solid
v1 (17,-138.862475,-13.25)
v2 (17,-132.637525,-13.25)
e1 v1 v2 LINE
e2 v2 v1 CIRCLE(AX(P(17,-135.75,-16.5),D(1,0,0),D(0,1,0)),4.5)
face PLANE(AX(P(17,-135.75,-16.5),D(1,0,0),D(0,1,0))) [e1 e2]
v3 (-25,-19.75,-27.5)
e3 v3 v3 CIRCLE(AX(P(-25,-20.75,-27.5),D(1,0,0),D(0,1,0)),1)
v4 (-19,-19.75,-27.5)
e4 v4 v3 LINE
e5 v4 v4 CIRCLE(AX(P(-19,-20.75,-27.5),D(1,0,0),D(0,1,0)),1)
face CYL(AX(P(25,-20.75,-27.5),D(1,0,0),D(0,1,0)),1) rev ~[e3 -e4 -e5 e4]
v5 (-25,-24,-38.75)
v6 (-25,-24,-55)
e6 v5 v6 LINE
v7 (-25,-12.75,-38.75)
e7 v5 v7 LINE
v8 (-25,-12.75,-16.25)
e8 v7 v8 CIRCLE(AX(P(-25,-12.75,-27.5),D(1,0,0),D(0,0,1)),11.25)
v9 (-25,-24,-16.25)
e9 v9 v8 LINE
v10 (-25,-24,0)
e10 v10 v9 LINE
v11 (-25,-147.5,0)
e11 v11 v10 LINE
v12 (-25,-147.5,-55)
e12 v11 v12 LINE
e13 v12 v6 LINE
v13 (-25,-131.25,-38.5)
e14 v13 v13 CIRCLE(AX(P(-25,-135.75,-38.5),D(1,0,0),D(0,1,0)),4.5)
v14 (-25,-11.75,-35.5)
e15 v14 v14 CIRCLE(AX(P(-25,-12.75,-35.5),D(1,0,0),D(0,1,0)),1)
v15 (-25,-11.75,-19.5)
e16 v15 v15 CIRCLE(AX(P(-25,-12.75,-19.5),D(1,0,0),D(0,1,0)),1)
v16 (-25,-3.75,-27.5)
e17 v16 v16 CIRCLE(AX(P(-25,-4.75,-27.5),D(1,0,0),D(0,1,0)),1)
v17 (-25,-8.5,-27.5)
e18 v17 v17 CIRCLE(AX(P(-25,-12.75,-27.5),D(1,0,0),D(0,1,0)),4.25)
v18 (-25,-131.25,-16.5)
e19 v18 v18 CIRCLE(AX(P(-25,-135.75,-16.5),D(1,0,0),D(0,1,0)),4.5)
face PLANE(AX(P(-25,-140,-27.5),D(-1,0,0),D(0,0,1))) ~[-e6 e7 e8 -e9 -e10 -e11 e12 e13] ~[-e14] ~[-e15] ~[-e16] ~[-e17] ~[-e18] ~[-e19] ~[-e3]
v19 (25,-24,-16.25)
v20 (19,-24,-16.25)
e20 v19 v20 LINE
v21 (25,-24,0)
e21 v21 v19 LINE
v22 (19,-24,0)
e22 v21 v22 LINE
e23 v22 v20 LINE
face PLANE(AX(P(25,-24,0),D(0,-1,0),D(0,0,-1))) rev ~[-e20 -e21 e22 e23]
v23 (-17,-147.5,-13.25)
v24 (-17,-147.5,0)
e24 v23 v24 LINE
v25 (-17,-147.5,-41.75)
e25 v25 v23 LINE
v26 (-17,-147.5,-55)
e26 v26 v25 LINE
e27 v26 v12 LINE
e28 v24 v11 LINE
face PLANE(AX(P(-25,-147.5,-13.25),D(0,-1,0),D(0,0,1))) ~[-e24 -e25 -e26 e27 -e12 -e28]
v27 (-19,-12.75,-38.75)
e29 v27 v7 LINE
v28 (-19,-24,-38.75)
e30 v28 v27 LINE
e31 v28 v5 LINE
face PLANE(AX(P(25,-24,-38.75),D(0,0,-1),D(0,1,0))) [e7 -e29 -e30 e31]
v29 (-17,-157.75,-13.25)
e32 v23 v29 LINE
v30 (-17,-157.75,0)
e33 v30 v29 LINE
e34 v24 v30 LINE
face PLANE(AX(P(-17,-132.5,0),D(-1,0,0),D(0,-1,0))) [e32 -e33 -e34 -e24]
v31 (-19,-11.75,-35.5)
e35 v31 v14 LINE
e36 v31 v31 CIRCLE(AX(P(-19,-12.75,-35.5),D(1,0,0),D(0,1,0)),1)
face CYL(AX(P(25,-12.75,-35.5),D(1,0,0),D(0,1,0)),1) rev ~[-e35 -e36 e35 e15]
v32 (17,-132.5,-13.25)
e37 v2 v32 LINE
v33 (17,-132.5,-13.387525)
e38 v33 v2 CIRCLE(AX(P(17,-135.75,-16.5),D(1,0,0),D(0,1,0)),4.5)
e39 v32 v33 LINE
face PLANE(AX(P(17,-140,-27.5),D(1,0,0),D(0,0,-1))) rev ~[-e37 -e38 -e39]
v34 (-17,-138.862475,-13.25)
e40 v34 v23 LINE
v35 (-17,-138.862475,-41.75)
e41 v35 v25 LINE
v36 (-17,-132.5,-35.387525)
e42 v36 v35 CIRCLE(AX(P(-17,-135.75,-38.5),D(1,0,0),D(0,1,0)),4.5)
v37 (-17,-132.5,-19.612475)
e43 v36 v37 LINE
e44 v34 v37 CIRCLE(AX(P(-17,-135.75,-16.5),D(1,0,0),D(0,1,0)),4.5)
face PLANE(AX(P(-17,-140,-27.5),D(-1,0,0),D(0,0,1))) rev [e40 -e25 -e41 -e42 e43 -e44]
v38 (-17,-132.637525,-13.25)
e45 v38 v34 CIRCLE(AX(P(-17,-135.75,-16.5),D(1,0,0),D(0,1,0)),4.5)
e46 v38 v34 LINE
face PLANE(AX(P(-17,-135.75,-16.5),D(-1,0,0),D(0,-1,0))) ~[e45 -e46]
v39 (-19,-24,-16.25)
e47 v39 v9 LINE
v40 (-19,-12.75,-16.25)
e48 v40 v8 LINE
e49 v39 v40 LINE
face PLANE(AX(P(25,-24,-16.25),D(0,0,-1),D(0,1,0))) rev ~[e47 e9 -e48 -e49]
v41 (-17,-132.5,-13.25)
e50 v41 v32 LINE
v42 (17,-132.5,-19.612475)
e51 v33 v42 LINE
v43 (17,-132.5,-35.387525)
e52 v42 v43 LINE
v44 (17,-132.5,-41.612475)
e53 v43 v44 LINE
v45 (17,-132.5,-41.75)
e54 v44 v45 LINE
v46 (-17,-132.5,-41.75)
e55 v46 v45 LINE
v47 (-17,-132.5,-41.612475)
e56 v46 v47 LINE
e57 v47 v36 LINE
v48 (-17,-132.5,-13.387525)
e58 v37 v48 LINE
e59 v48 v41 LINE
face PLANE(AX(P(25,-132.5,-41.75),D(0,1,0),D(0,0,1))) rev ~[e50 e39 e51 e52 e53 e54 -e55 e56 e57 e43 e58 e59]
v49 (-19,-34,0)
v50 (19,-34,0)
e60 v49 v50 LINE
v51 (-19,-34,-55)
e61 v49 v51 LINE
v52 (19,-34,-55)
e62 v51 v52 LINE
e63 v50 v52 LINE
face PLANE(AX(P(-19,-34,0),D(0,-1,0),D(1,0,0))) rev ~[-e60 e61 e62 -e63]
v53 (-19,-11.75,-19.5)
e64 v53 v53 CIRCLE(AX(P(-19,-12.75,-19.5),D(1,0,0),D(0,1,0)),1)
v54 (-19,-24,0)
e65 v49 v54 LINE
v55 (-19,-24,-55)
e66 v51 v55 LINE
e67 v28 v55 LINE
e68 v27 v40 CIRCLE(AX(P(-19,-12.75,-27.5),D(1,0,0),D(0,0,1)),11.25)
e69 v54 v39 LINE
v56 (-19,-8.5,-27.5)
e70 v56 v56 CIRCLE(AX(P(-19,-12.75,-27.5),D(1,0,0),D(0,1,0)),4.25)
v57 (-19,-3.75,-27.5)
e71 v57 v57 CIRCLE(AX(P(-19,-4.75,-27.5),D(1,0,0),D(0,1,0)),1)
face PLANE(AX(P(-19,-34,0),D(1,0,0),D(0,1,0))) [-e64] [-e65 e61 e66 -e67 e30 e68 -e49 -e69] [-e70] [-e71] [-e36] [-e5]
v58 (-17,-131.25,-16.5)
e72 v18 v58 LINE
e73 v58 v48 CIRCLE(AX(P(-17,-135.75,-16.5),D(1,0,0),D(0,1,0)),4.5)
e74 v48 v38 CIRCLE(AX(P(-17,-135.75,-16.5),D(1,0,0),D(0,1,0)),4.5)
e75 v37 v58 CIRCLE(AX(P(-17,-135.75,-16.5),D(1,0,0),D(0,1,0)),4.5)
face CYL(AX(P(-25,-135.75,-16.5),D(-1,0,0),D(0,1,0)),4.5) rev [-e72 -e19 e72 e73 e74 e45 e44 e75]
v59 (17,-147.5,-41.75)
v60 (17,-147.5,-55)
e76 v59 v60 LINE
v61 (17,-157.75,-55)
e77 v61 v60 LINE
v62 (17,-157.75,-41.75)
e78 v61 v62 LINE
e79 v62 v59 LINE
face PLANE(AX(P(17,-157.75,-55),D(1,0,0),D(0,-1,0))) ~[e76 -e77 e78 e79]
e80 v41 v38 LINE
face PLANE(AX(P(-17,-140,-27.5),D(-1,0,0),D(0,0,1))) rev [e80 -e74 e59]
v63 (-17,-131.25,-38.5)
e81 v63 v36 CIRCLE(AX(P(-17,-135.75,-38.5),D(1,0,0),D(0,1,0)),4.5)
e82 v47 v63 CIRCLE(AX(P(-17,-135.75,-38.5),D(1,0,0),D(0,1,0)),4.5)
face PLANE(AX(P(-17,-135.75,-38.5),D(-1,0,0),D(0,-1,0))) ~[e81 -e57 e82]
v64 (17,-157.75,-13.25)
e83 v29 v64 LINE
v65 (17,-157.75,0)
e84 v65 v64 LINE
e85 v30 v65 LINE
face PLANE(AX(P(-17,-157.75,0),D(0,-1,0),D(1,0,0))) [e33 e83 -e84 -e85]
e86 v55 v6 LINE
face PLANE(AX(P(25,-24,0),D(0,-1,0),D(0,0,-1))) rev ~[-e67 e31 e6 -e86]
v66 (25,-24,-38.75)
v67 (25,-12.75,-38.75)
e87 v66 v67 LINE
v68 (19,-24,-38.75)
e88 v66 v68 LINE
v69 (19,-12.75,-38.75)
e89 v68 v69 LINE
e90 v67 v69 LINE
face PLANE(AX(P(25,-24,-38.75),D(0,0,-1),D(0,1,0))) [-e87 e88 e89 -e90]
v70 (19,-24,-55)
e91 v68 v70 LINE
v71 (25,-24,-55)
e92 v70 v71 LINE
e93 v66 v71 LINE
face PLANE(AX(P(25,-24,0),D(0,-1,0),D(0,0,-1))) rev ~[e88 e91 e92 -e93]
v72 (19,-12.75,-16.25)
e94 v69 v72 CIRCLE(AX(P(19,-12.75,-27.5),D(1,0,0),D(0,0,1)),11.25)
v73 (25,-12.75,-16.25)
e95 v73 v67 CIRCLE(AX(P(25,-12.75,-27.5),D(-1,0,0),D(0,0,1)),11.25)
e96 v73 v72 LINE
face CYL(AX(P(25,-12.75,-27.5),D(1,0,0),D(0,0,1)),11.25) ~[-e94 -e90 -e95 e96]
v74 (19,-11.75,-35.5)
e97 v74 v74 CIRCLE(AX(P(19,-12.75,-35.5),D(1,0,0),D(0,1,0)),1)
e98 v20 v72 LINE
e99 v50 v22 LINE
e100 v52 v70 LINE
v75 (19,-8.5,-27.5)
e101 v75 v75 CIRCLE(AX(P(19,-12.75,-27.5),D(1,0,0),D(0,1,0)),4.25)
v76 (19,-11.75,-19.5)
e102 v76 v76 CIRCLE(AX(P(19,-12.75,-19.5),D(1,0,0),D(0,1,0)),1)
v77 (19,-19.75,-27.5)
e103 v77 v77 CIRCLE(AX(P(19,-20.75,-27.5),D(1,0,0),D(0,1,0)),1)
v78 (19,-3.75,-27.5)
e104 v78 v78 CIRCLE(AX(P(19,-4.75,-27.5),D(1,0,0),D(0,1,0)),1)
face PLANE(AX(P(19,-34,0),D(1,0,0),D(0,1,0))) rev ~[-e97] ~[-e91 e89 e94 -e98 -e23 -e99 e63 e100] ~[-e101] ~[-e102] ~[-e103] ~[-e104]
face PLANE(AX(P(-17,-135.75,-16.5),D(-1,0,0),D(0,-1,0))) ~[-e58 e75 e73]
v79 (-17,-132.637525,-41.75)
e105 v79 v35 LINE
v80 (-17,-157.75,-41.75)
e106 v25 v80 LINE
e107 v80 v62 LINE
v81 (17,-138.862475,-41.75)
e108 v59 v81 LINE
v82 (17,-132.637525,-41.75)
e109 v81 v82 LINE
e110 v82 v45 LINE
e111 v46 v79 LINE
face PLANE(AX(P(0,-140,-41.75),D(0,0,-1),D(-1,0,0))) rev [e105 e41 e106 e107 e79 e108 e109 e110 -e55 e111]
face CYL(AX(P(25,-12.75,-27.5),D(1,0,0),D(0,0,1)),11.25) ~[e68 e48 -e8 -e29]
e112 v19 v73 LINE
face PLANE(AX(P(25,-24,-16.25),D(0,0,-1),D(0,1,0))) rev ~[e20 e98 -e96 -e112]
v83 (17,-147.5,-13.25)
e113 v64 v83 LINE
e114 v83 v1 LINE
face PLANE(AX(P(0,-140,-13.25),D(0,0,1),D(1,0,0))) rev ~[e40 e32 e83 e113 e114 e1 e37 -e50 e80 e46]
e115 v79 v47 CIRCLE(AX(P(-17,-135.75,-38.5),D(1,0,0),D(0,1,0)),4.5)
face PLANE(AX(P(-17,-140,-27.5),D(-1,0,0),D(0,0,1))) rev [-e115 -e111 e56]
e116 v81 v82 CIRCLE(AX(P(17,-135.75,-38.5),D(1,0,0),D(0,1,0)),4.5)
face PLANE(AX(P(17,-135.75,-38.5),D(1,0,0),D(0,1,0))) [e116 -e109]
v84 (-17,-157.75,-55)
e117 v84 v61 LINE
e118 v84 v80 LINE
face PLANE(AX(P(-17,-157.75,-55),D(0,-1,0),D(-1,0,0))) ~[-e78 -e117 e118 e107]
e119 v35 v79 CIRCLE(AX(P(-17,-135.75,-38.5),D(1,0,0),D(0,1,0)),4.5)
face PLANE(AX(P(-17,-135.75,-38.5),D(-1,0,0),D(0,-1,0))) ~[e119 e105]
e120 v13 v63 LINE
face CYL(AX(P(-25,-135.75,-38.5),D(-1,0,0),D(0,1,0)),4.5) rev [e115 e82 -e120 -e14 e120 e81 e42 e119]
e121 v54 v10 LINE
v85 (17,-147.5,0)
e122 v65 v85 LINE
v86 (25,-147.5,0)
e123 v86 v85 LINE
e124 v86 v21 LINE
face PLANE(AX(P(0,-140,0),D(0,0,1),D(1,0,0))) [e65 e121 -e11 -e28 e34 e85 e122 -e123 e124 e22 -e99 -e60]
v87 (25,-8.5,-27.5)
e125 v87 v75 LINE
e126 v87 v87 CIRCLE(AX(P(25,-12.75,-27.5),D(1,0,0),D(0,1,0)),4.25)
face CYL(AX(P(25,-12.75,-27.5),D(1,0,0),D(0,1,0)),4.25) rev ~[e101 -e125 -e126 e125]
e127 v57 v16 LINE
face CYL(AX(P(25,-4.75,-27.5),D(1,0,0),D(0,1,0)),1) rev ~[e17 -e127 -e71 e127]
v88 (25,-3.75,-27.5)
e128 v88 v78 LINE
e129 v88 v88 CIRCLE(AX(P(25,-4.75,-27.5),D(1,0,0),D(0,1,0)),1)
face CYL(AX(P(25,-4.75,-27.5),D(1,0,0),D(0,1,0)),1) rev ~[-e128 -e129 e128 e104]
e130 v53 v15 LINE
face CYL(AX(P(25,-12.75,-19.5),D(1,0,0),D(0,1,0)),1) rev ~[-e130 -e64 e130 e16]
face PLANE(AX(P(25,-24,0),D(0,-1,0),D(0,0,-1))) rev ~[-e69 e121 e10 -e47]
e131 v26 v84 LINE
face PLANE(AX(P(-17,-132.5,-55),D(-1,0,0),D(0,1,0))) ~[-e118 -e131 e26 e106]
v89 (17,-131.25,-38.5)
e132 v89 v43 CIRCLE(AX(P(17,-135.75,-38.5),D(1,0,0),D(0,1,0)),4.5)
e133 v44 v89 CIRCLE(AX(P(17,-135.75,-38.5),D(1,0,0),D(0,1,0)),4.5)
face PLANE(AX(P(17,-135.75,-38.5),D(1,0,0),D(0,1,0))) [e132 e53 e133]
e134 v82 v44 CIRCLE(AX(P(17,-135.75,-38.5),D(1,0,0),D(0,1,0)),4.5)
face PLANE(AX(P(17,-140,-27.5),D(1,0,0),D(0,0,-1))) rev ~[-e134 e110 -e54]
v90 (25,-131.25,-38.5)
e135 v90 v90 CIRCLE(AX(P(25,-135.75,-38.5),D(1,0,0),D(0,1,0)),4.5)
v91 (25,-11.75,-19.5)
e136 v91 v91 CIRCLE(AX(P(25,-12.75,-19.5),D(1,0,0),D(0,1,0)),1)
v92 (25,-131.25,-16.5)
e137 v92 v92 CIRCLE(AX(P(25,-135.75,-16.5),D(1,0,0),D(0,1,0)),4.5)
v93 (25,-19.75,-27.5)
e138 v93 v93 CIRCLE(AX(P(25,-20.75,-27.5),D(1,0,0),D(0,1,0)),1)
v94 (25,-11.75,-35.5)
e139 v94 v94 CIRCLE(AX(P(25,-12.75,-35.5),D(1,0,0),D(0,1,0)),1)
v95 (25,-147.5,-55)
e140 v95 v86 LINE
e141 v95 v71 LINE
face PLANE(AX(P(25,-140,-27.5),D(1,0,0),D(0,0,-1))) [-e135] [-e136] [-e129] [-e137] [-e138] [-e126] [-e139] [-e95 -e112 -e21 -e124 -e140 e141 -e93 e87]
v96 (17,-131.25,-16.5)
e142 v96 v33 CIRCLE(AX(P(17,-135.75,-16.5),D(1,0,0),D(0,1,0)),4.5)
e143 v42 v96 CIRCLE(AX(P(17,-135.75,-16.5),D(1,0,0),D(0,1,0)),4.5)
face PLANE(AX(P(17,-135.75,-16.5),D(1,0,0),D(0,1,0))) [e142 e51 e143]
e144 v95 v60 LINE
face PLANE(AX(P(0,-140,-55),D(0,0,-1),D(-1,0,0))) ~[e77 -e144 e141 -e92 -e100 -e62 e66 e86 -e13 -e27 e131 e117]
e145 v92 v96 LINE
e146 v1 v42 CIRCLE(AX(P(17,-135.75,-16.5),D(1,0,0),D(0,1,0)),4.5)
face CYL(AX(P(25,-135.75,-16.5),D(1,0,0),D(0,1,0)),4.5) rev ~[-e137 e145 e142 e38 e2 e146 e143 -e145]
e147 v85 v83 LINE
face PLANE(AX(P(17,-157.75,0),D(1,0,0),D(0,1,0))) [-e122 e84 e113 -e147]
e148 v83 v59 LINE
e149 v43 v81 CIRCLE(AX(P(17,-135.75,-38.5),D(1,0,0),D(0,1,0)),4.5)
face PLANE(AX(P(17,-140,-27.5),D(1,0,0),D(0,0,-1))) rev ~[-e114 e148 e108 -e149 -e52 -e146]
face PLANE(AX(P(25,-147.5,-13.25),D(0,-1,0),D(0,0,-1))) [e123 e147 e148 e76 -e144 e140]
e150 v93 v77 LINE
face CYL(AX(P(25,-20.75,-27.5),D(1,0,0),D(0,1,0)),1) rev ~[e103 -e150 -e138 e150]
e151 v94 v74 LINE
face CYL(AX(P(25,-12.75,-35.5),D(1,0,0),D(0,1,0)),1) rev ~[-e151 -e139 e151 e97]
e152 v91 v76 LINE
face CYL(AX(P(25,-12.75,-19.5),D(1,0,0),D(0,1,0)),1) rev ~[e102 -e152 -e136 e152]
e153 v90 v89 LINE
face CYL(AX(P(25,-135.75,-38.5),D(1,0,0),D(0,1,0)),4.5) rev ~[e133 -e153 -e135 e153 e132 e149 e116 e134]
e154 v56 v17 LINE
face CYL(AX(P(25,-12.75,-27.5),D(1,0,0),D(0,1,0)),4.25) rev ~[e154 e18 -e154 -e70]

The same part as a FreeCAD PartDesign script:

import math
import FreeCAD as App
import Part
import Sketcher
Q = App.Units.Quantity

doc = App.newDocument("Part")
body = doc.addObject("PartDesign::Body", "Body")

# Sketch on XY plane
sketch1 = doc.addObject("Sketcher::SketchObject", "Sketch")
body.addObject(sketch1)
sketch1.AttachmentSupport = (doc.XY_Plane, [""])
sketch1.MapMode = "FlatFace"
sketch1.addGeometry([
    Part.LineSegment(App.Vector(-25, 0, 0), App.Vector(-25, -170, 0)),
    Part.LineSegment(App.Vector(-25, -170, 0), App.Vector(25, -170, 0)),
    Part.LineSegment(App.Vector(25, -170, 0), App.Vector(25, 0, 0)),
    Part.LineSegment(App.Vector(25, 0, 0), App.Vector(-25, 0, 0)),
], False)
sketch1.addConstraint([
    Sketcher.Constraint("Coincident", 0, 2, 1, 1),
    Sketcher.Constraint("Coincident", 1, 2, 2, 1),
    Sketcher.Constraint("Coincident", 2, 2, 3, 1),
    Sketcher.Constraint("Coincident", 3, 2, 0, 1),
    Sketcher.Constraint("Vertical", 0),
    Sketcher.Constraint("Horizontal", 1),
    Sketcher.Constraint("Vertical", 2),
    Sketcher.Constraint("Horizontal", 3),
    Sketcher.Constraint("Symmetric", 2, 2, 3, 2, -1, 1),
    Sketcher.Constraint("DistanceX", 1, 1, 1, 2, Q("50 mm")),
    Sketcher.Constraint("DistanceY", 0, 2, 0, 1, Q("170 mm")),
])
pad1 = doc.addObject("PartDesign::Pad", "Pad")
body.addObject(pad1)
pad1.Profile = sketch1
pad1.Length = 55
pad1.Reversed = True

# Sketch on XY plane
sketch2 = doc.addObject("Sketcher::SketchObject", "Sketch001")
body.addObject(sketch2)
sketch2.AttachmentSupport = (doc.XY_Plane, [""])
sketch2.MapMode = "FlatFace"
sketch2.addGeometry([
    Part.LineSegment(App.Vector(-17, 0, 0), App.Vector(-17, -27, 0)),
    Part.LineSegment(App.Vector(-17, -27, 0), App.Vector(17, -27, 0)),
    Part.LineSegment(App.Vector(17, -27, 0), App.Vector(17, 0, 0)),
    Part.LineSegment(App.Vector(17, 0, 0), App.Vector(-17, 0, 0)),
], False)
sketch2.addConstraint([
    Sketcher.Constraint("Coincident", 0, 2, 1, 1),
    Sketcher.Constraint("Coincident", 1, 2, 2, 1),
    Sketcher.Constraint("Coincident", 2, 2, 3, 1),
    Sketcher.Constraint("Coincident", 3, 2, 0, 1),
    Sketcher.Constraint("Vertical", 0),
    Sketcher.Constraint("Horizontal", 1),
    Sketcher.Constraint("Vertical", 2),
    Sketcher.Constraint("Horizontal", 3),
    Sketcher.Constraint("Symmetric", 2, 2, 3, 2, -1, 1),
    Sketcher.Constraint("DistanceX", 1, 1, 1, 2, Q("34 mm")),
    Sketcher.Constraint("DistanceY", 0, 2, 0, 1, Q("27 mm")),
])
pocket1 = doc.addObject("PartDesign::Pocket", "Pocket")
body.addObject(pocket1)
pocket1.Profile = sketch2
pocket1.Type = "ThroughAll"

# Sketch on YZ plane
sketch3 = doc.addObject("Sketcher::SketchObject", "Sketch002")
body.addObject(sketch3)
sketch3.AttachmentSupport = (doc.YZ_Plane, [""])
sketch3.MapMode = "FlatFace"
sketch3.AttachmentOffset = App.Placement(App.Vector(0, 0, 25), App.Rotation())
sketch3.addGeometry([
    Part.LineSegment(App.Vector(0, -45, 0), App.Vector(-24, -45, 0)),  # 0
    Part.LineSegment(App.Vector(-24, -45, 0), App.Vector(-24, -55, 0)),  # 1
    Part.LineSegment(App.Vector(-24, -55, 0), App.Vector(0, -55, 0)),  # 2
    Part.LineSegment(App.Vector(0, -55, 0), App.Vector(0, -45, 0)),  # 3
    Part.LineSegment(App.Vector(0, 0, 0), App.Vector(-24, 0, 0)),  # 4
    Part.LineSegment(App.Vector(-24, 0, 0), App.Vector(-24, -10, 0)),  # 5
    Part.LineSegment(App.Vector(-24, -10, 0), App.Vector(0, -10, 0)),  # 6
    Part.LineSegment(App.Vector(0, -10, 0), App.Vector(0, 0, 0)),  # 7
    Part.Circle(App.Vector(-12.8, -27.5, 0), App.Vector(0, 0, 1), 4.2),  # 8
    Part.Circle(App.Vector(-12.8, -35.5, 0), App.Vector(0, 0, 1), 1),  # 9
    Part.Circle(App.Vector(-4.8, -27.5, 0), App.Vector(0, 0, 1), 1),  # 10
    Part.Circle(App.Vector(-20.8, -27.5, 0), App.Vector(0, 0, 1), 1),  # 11
    Part.Circle(App.Vector(-12.8, -19.5, 0), App.Vector(0, 0, 1), 1),  # 12
], False)
sketch3.addConstraint([
    Sketcher.Constraint("Coincident", 0, 2, 1, 1),
    Sketcher.Constraint("Coincident", 1, 2, 2, 1),
    Sketcher.Constraint("Coincident", 2, 2, 3, 1),
    Sketcher.Constraint("Coincident", 3, 2, 0, 1),
    Sketcher.Constraint("Coincident", 4, 2, 5, 1),
    Sketcher.Constraint("Coincident", 5, 2, 6, 1),
    Sketcher.Constraint("Coincident", 6, 2, 7, 1),
    Sketcher.Constraint("Coincident", 7, 2, 4, 1),
    Sketcher.Constraint("Horizontal", 0),
    Sketcher.Constraint("Vertical", 1),
    Sketcher.Constraint("Horizontal", 2),
    Sketcher.Constraint("Vertical", 3),
    Sketcher.Constraint("Horizontal", 4),
    Sketcher.Constraint("Vertical", 5),
    Sketcher.Constraint("Horizontal", 6),
    Sketcher.Constraint("Vertical", 7),
    Sketcher.Constraint("Coincident", 7, 2, -1, 1),
    Sketcher.Constraint("Equal", 9, 10),
    Sketcher.Constraint("Equal", 10, 11),
    Sketcher.Constraint("Equal", 11, 12),
    Sketcher.Constraint("PointOnObject", 2, 2, -2),
    Sketcher.Constraint("Horizontal", 8, 3, 10, 3),
    Sketcher.Constraint("Horizontal", 10, 3, 11, 3),
    Sketcher.Constraint("Vertical", 8, 3, 9, 3),
    Sketcher.Constraint("Vertical", 9, 3, 12, 3),
    Sketcher.Constraint("Vertical", 1, 2, 4, 2),
    Sketcher.Constraint("Equal", 3, 5),
    Sketcher.Constraint("Diameter", 9, Q("2 mm")),
    Sketcher.Constraint("Diameter", 8, Q("8.5 mm")),
    Sketcher.Constraint("DistanceX", 0, 2, 0, 1, Q("24 mm")),
    Sketcher.Constraint("DistanceY", 1, 2, 1, 1, Q("10 mm")),
    Sketcher.Constraint("DistanceY", 0, 2, -1, 1, Q("45 mm")),
    Sketcher.Constraint("DistanceY", 9, 3, 8, 3, Q("8 mm")),
    Sketcher.Constraint("DistanceX", 8, 3, 10, 3, Q("8 mm")),
    Sketcher.Constraint("DistanceX", 11, 3, 8, 3, Q("8 mm")),
    Sketcher.Constraint("DistanceY", 8, 3, 12, 3, Q("8 mm")),
    Sketcher.Constraint("DistanceY", 8, 3, -1, 1, Q("27.5 mm")),
    Sketcher.Constraint("DistanceX", 8, 3, -1, 1, Q("12.75 mm")),
])
pocket2 = doc.addObject("PartDesign::Pocket", "Pocket001")
body.addObject(pocket2)
pocket2.Profile = sketch3
pocket2.Type = "ThroughAll"

# Sketch on XY plane
sketch4 = doc.addObject("Sketcher::SketchObject", "Sketch003")
body.addObject(sketch4)
sketch4.AttachmentSupport = (doc.XY_Plane, [""])
sketch4.MapMode = "FlatFace"
sketch4.AttachmentOffset = App.Placement(App.Vector(0, 0, -10), App.Rotation())
sketch4.addGeometry([
    Part.LineSegment(App.Vector(-19, 0, 0), App.Vector(-19, -24, 0)),  # 0
    Part.LineSegment(App.Vector(-19, -24, 0), App.Vector(-17, -24, 0)),  # 1
    Part.LineSegment(App.Vector(-17, -24, 0), App.Vector(-17, 0, 0)),  # 2
    Part.LineSegment(App.Vector(-17, 0, 0), App.Vector(-19, 0, 0)),  # 3
    Part.LineSegment(App.Vector(17, 0, 0), App.Vector(17, -24, 0)),  # 4
    Part.LineSegment(App.Vector(17, -24, 0), App.Vector(19, -24, 0)),  # 5
    Part.LineSegment(App.Vector(19, -24, 0), App.Vector(19, 0, 0)),  # 6
    Part.LineSegment(App.Vector(19, 0, 0), App.Vector(17, 0, 0)),  # 7
], False)
sketch4.addConstraint([
    Sketcher.Constraint("Coincident", 0, 2, 1, 1),
    Sketcher.Constraint("Coincident", 1, 2, 2, 1),
    Sketcher.Constraint("Coincident", 2, 2, 3, 1),
    Sketcher.Constraint("Coincident", 3, 2, 0, 1),
    Sketcher.Constraint("Coincident", 4, 2, 5, 1),
    Sketcher.Constraint("Coincident", 5, 2, 6, 1),
    Sketcher.Constraint("Coincident", 6, 2, 7, 1),
    Sketcher.Constraint("Coincident", 7, 2, 4, 1),
    Sketcher.Constraint("Vertical", 0),
    Sketcher.Constraint("Horizontal", 1),
    Sketcher.Constraint("Vertical", 2),
    Sketcher.Constraint("Horizontal", 3),
    Sketcher.Constraint("Vertical", 4),
    Sketcher.Constraint("Horizontal", 5),
    Sketcher.Constraint("Vertical", 6),
    Sketcher.Constraint("Horizontal", 7),
    Sketcher.Constraint("Symmetric", 3, 2, 6, 2, -1, 1),
    Sketcher.Constraint("Symmetric", 1, 2, 4, 2, -2),
    Sketcher.Constraint("PointOnObject", 2, 2, -1),
    Sketcher.Constraint("DistanceX", 1, 1, 1, 2, Q("2 mm")),
    Sketcher.Constraint("DistanceY", 0, 2, 0, 1, Q("24 mm")),
    Sketcher.Constraint("DistanceX", 0, 2, -1, 1, Q("19 mm")),
])
pocket3 = doc.addObject("PartDesign::Pocket", "Pocket002")
body.addObject(pocket3)
pocket3.Profile = sketch4
pocket3.Type = "ThroughAll"

# Sketch on YZ plane
sketch5 = doc.addObject("Sketcher::SketchObject", "Sketch004")
body.addObject(sketch5)
sketch5.AttachmentSupport = (doc.YZ_Plane, [""])
sketch5.MapMode = "FlatFace"
sketch5.AttachmentOffset = App.Placement(App.Vector(0, 0, 25), App.Rotation())
sketch5.addGeometry([
    Part.LineSegment(App.Vector(0, -45, 0), App.Vector(0, -10, 0)),  # 0
    Part.LineSegment(App.Vector(0, -10, 0), App.Vector(-24, -10, 0)),  # 1
    Part.LineSegment(App.Vector(-24, -10, 0), App.Vector(-24, -16, 0)),  # 2
    Part.LineSegment(App.Vector(-24, -16, 0), App.Vector(-13, -16, 0)),  # 3
    Part.ArcOfCircle(Part.Circle(App.Vector(-13, -28, 0), App.Vector(0, 0, 1), 11), math.radians(-90), math.radians(90)),  # 4
    Part.LineSegment(App.Vector(-13, -39, 0), App.Vector(-24, -39, 0)),  # 5
    Part.LineSegment(App.Vector(-24, -39, 0), App.Vector(-24, -45, 0)),  # 6
    Part.LineSegment(App.Vector(-24, -45, 0), App.Vector(0, -45, 0)),  # 7
], False)
sketch5.addConstraint([
    Sketcher.Constraint("Coincident", 0, 2, 1, 1),
    Sketcher.Constraint("Coincident", 1, 2, 2, 1),
    Sketcher.Constraint("Coincident", 2, 2, 3, 1),
    Sketcher.Constraint("Tangent", 3, 2, 4, 2),
    Sketcher.Constraint("Tangent", 4, 1, 5, 1),
    Sketcher.Constraint("Coincident", 5, 2, 6, 1),
    Sketcher.Constraint("Coincident", 6, 2, 7, 1),
    Sketcher.Constraint("Coincident", 7, 2, 0, 1),
    Sketcher.Constraint("Vertical", 0),
    Sketcher.Constraint("Horizontal", 1),
    Sketcher.Constraint("Vertical", 2),
    Sketcher.Constraint("Horizontal", 3),
    Sketcher.Constraint("Horizontal", 5),
    Sketcher.Constraint("Vertical", 6),
    Sketcher.Constraint("Horizontal", 7),
    Sketcher.Constraint("PointOnObject", 0, 2, -2),
    Sketcher.Constraint("Vertical", 2, 2, 5, 2),
    Sketcher.Constraint("Equal", 2, 6),
    Sketcher.Constraint("DistanceX", 1, 2, 1, 1, Q("24 mm")),
    Sketcher.Constraint("DistanceY", 0, 1, 0, 2, Q("35 mm")),
    Sketcher.Constraint("Radius", 4, Q("11.25 mm")),
    Sketcher.Constraint("DistanceY", 0, 2, -1, 1, Q("10 mm")),
    Sketcher.Constraint("DistanceX", 3, 1, 3, 2, Q("11.25 mm")),
])
pocket4 = doc.addObject("PartDesign::Pocket", "Pocket003")
body.addObject(pocket4)
pocket4.Profile = sketch5
pocket4.Type = "ThroughAll"

# Sketch on XY plane
sketch6 = doc.addObject("Sketcher::SketchObject", "Sketch005")
body.addObject(sketch6)
sketch6.AttachmentSupport = (doc.XY_Plane, [""])
sketch6.MapMode = "FlatFace"
sketch6.addGeometry([
    Part.LineSegment(App.Vector(-19, -24, 0), App.Vector(-19, -34, 0)),
    Part.LineSegment(App.Vector(-19, -34, 0), App.Vector(19, -34, 0)),
    Part.LineSegment(App.Vector(19, -34, 0), App.Vector(19, -24, 0)),
    Part.LineSegment(App.Vector(19, -24, 0), App.Vector(-19, -24, 0)),
], False)
sketch6.addConstraint([
    Sketcher.Constraint("Coincident", 0, 2, 1, 1),
    Sketcher.Constraint("Coincident", 1, 2, 2, 1),
    Sketcher.Constraint("Coincident", 2, 2, 3, 1),
    Sketcher.Constraint("Coincident", 3, 2, 0, 1),
    Sketcher.Constraint("Vertical", 0),
    Sketcher.Constraint("Horizontal", 1),
    Sketcher.Constraint("Vertical", 2),
    Sketcher.Constraint("Horizontal", 3),
    Sketcher.Constraint("DistanceX", 1, 1, 1, 2, Q("38 mm")),
    Sketcher.Constraint("DistanceY", 0, 2, 0, 1, Q("10 mm")),
    Sketcher.Constraint("DistanceX", 0, 2, -1, 1, Q("19 mm")),
    Sketcher.Constraint("DistanceY", 0, 2, -1, 1, Q("34 mm")),
])
pocket5 = doc.addObject("PartDesign::Pocket", "Pocket004")
body.addObject(pocket5)
pocket5.Profile = sketch6
pocket5.Type = "ThroughAll"

# Sketch on YZ plane
sketch7 = doc.addObject("Sketcher::SketchObject", "Sketch006")
body.addObject(sketch7)
sketch7.AttachmentSupport = (doc.YZ_Plane, [""])
sketch7.MapMode = "FlatFace"
sketch7.AttachmentOffset = App.Placement(App.Vector(0, 0, 25), App.Rotation())
sketch7.addGeometry([
    Part.LineSegment(App.Vector(-132.5, -13.2, 0), App.Vector(-167.8, -13.2, 0)),  # 0
    Part.LineSegment(App.Vector(-167.8, -13.2, 0), App.Vector(-167.8, 0, 0)),  # 1
    Part.LineSegment(App.Vector(-167.8, 0, 0), App.Vector(-170, 0, 0)),  # 2
    Part.LineSegment(App.Vector(-170, 0, 0), App.Vector(-170, -55, 0)),  # 3
    Part.LineSegment(App.Vector(-170, -55, 0), App.Vector(-167.8, -55, 0)),  # 4
    Part.LineSegment(App.Vector(-167.8, -55, 0), App.Vector(-167.8, -41.8, 0)),  # 5
    Part.LineSegment(App.Vector(-167.8, -41.8, 0), App.Vector(-132.5, -41.8, 0)),  # 6
    Part.LineSegment(App.Vector(-132.5, -41.8, 0), App.Vector(-132.5, -13.2, 0)),  # 7
], False)
sketch7.addConstraint([
    Sketcher.Constraint("Coincident", 0, 2, 1, 1),
    Sketcher.Constraint("Coincident", 1, 2, 2, 1),
    Sketcher.Constraint("Coincident", 2, 2, 3, 1),
    Sketcher.Constraint("Coincident", 3, 2, 4, 1),
    Sketcher.Constraint("Coincident", 4, 2, 5, 1),
    Sketcher.Constraint("Coincident", 5, 2, 6, 1),
    Sketcher.Constraint("Coincident", 6, 2, 7, 1),
    Sketcher.Constraint("Coincident", 7, 2, 0, 1),
    Sketcher.Constraint("Horizontal", 0),
    Sketcher.Constraint("Vertical", 1),
    Sketcher.Constraint("Horizontal", 2),
    Sketcher.Constraint("Vertical", 3),
    Sketcher.Constraint("Horizontal", 4),
    Sketcher.Constraint("Vertical", 5),
    Sketcher.Constraint("Horizontal", 6),
    Sketcher.Constraint("Vertical", 7),
    Sketcher.Constraint("PointOnObject", 1, 2, -1),
    Sketcher.Constraint("Vertical", 1, 2, 4, 2),
    Sketcher.Constraint("Equal", 1, 5),
    Sketcher.Constraint("DistanceY", 3, 2, 3, 1, Q("55 mm")),
    Sketcher.Constraint("DistanceY", 7, 1, 7, 2, Q("28.5 mm")),
    Sketcher.Constraint("DistanceX", 2, 2, -1, 1, Q("170 mm")),
    Sketcher.Constraint("DistanceX", 0, 2, 0, 1, Q("35.25 mm")),
    Sketcher.Constraint("DistanceX", 2, 2, 2, 1, Q("2.25 mm")),
])
pocket6 = doc.addObject("PartDesign::Pocket", "Pocket005")
body.addObject(pocket6)
pocket6.Profile = sketch7
pocket6.Type = "ThroughAll"

# Sketch on XY plane
sketch8 = doc.addObject("Sketcher::SketchObject", "Sketch007")
body.addObject(sketch8)
sketch8.AttachmentSupport = (doc.XY_Plane, [""])
sketch8.MapMode = "FlatFace"
sketch8.addGeometry([
    Part.LineSegment(App.Vector(-17, -132, 0), App.Vector(-17, -168, 0)),
    Part.LineSegment(App.Vector(-17, -168, 0), App.Vector(17, -168, 0)),
    Part.LineSegment(App.Vector(17, -168, 0), App.Vector(17, -132, 0)),
    Part.LineSegment(App.Vector(17, -132, 0), App.Vector(-17, -132, 0)),
], False)
sketch8.addConstraint([
    Sketcher.Constraint("Coincident", 0, 2, 1, 1),
    Sketcher.Constraint("Coincident", 1, 2, 2, 1),
    Sketcher.Constraint("Coincident", 2, 2, 3, 1),
    Sketcher.Constraint("Coincident", 3, 2, 0, 1),
    Sketcher.Constraint("Vertical", 0),
    Sketcher.Constraint("Horizontal", 1),
    Sketcher.Constraint("Vertical", 2),
    Sketcher.Constraint("Horizontal", 3),
    Sketcher.Constraint("DistanceX", 1, 1, 1, 2, Q("34 mm")),
    Sketcher.Constraint("DistanceX", 0, 2, -1, 1, Q("17 mm")),
    Sketcher.Constraint("DistanceY", 0, 2, 0, 1, Q("35.25 mm")),
    Sketcher.Constraint("DistanceY", 2, 2, -1, 1, Q("132.5 mm")),
])
pocket7 = doc.addObject("PartDesign::Pocket", "Pocket006")
body.addObject(pocket7)
pocket7.Profile = sketch8
pocket7.Type = "ThroughAll"

# Sketch on YZ plane
sketch9 = doc.addObject("Sketcher::SketchObject", "Sketch008")
body.addObject(sketch9)
sketch9.AttachmentSupport = (doc.YZ_Plane, [""])
sketch9.MapMode = "FlatFace"
sketch9.AttachmentOffset = App.Placement(App.Vector(0, 0, 25), App.Rotation())
sketch9.addGeometry([
    Part.ArcOfCircle(Part.Circle(App.Vector(-168, -28, 0), App.Vector(0, 0, 1), 10), math.radians(0), math.radians(90)),  # 0
    Part.ArcOfCircle(Part.Circle(App.Vector(-168, -27, 0), App.Vector(0, 0, 1), 10), math.radians(-90), math.radians(0)),  # 1
    Part.LineSegment(App.Vector(-168, -38, 0), App.Vector(-168, -55, 0)),  # 2
    Part.LineSegment(App.Vector(-168, -55, 0), App.Vector(-148, -55, 0)),  # 3
    Part.LineSegment(App.Vector(-148, -55, 0), App.Vector(-148, 0, 0)),  # 4
    Part.LineSegment(App.Vector(-148, 0, 0), App.Vector(-168, 0, 0)),  # 5
    Part.LineSegment(App.Vector(-168, 0, 0), App.Vector(-168, -17, 0)),  # 6
], False)
sketch9.addConstraint([
    Sketcher.Constraint("Tangent", 0, 1, 1, 2),
    Sketcher.Constraint("Coincident", 1, 1, 2, 1),
    Sketcher.Constraint("Coincident", 2, 2, 3, 1),
    Sketcher.Constraint("Coincident", 3, 2, 4, 1),
    Sketcher.Constraint("Coincident", 4, 2, 5, 1),
    Sketcher.Constraint("Coincident", 5, 2, 6, 1),
    Sketcher.Constraint("Coincident", 6, 2, 0, 2),
    Sketcher.Constraint("Vertical", 2),
    Sketcher.Constraint("Horizontal", 3),
    Sketcher.Constraint("Vertical", 4),
    Sketcher.Constraint("Horizontal", 5),
    Sketcher.Constraint("Vertical", 6),
    Sketcher.Constraint("Equal", 0, 1),
    Sketcher.Constraint("PointOnObject", 4, 2, -1),
    Sketcher.Constraint("Horizontal", 1, 3, 0, 1),
    Sketcher.Constraint("Vertical", 0, 3, 1, 1),
    Sketcher.Constraint("Vertical", 2, 2, 5, 2),
    Sketcher.Constraint("Equal", 2, 6),
    Sketcher.Constraint("DistanceY", 4, 1, 4, 2, Q("55 mm")),
    Sketcher.Constraint("Radius", 0, Q("10.25 mm")),
    Sketcher.Constraint("DistanceX", 0, 1, 3, 2, Q("10 mm")),
    Sketcher.Constraint("DistanceX", 0, 1, -1, 1, Q("157.5 mm")),
])
pocket8 = doc.addObject("PartDesign::Pocket", "Pocket007")
body.addObject(pocket8)
pocket8.Profile = sketch9
pocket8.Type = "ThroughAll"

# Sketch on YZ plane
sketch10 = doc.addObject("Sketcher::SketchObject", "Sketch009")
body.addObject(sketch10)
sketch10.AttachmentSupport = (doc.YZ_Plane, [""])
sketch10.MapMode = "FlatFace"
sketch10.AttachmentOffset = App.Placement(App.Vector(0, 0, 25), App.Rotation())
sketch10.addGeometry([
    Part.LineSegment(App.Vector(-132, -13, 0), App.Vector(-148, -13, 0)),
    Part.LineSegment(App.Vector(-148, -13, 0), App.Vector(-148, -42, 0)),
    Part.LineSegment(App.Vector(-148, -42, 0), App.Vector(-132, -42, 0)),
    Part.LineSegment(App.Vector(-132, -42, 0), App.Vector(-132, -13, 0)),
], False)
sketch10.addConstraint([
    Sketcher.Constraint("Coincident", 0, 2, 1, 1),
    Sketcher.Constraint("Coincident", 1, 2, 2, 1),
    Sketcher.Constraint("Coincident", 2, 2, 3, 1),
    Sketcher.Constraint("Coincident", 3, 2, 0, 1),
    Sketcher.Constraint("Horizontal", 0),
    Sketcher.Constraint("Vertical", 1),
    Sketcher.Constraint("Horizontal", 2),
    Sketcher.Constraint("Vertical", 3),
    Sketcher.Constraint("DistanceX", 0, 2, 0, 1, Q("15 mm")),
    Sketcher.Constraint("DistanceY", 1, 2, 1, 1, Q("28.5 mm")),
    Sketcher.Constraint("DistanceX", 0, 2, -1, 1, Q("147.5 mm")),
    Sketcher.Constraint("DistanceY", 0, 2, -1, 1, Q("13.25 mm")),
])
pad2 = doc.addObject("PartDesign::Pad", "Pad001")
body.addObject(pad2)
pad2.Profile = sketch10
pad2.Length = 8
pad2.Reversed = True
doc.recompute()

mirrored = doc.addObject("PartDesign::Mirrored", "Mirrored")
body.addObject(mirrored)
mirrored.Originals = [pad2]
mirrored.MirrorPlane = (doc.YZ_Plane, [""])
body.Tip = mirrored

# Sketch on XY plane
sketch11 = doc.addObject("Sketcher::SketchObject", "Sketch010")
body.addObject(sketch11)
sketch11.AttachmentSupport = (doc.XY_Plane, [""])
sketch11.MapMode = "FlatFace"
sketch11.addGeometry([
    Part.LineSegment(App.Vector(-17, -132, 0), App.Vector(-17, -158, 0)),
    Part.LineSegment(App.Vector(-17, -158, 0), App.Vector(17, -158, 0)),
    Part.LineSegment(App.Vector(17, -158, 0), App.Vector(17, -132, 0)),
    Part.LineSegment(App.Vector(17, -132, 0), App.Vector(-17, -132, 0)),
], False)
sketch11.addConstraint([
    Sketcher.Constraint("Coincident", 0, 2, 1, 1),
    Sketcher.Constraint("Coincident", 1, 2, 2, 1),
    Sketcher.Constraint("Coincident", 2, 2, 3, 1),
    Sketcher.Constraint("Coincident", 3, 2, 0, 1),
    Sketcher.Constraint("Vertical", 0),
    Sketcher.Constraint("Horizontal", 1),
    Sketcher.Constraint("Vertical", 2),
    Sketcher.Constraint("Horizontal", 3),
    Sketcher.Constraint("DistanceX", 1, 1, 1, 2, Q("34 mm")),
    Sketcher.Constraint("DistanceX", 0, 2, -1, 1, Q("17 mm")),
    Sketcher.Constraint("DistanceY", 0, 2, 0, 1, Q("25.25 mm")),
    Sketcher.Constraint("DistanceY", 2, 2, -1, 1, Q("132.5 mm")),
])
pad3 = doc.addObject("PartDesign::Pad", "Pad002")
body.addObject(pad3)
pad3.Profile = sketch11
pad3.Length = 13.25
pad3.Reversed = True
doc.recompute()

datumplane = doc.addObject("PartDesign::Plane", "DatumPlane")
body.addObject(datumplane)
datumplane.AttachmentSupport = (doc.XY_Plane, [""])
datumplane.MapMode = "FlatFace"
datumplane.AttachmentOffset = App.Placement(App.Vector(0, 0, -27.5), App.Rotation())
mirrored2 = doc.addObject("PartDesign::Mirrored", "Mirrored001")
body.addObject(mirrored2)
mirrored2.Originals = [pad3]
mirrored2.MirrorPlane = (datumplane, [""])
body.Tip = mirrored2

# Sketch on YZ plane
sketch12 = doc.addObject("Sketcher::SketchObject", "Sketch011")
body.addObject(sketch12)
sketch12.AttachmentSupport = (doc.YZ_Plane, [""])
sketch12.MapMode = "FlatFace"
sketch12.AttachmentOffset = App.Placement(App.Vector(0, 0, 25), App.Rotation())
sketch12.addGeometry([
    Part.Circle(App.Vector(-135.8, -16.5, 0), App.Vector(0, 0, 1), 4.5),
    Part.Circle(App.Vector(-135.8, -38.5, 0), App.Vector(0, 0, 1), 4.5),
], False)
sketch12.addConstraint([
    Sketcher.Constraint("Equal", 0, 1),
    Sketcher.Constraint("Vertical", 0, 3, 1, 3),
    Sketcher.Constraint("Diameter", 0, Q("9 mm")),
    Sketcher.Constraint("DistanceY", 1, 3, 0, 3, Q("22 mm")),
    Sketcher.Constraint("DistanceY", 0, 3, -1, 1, Q("16.5 mm")),
    Sketcher.Constraint("DistanceX", 0, 3, -1, 1, Q("135.75 mm")),
])
pocket9 = doc.addObject("PartDesign::Pocket", "Pocket008")
body.addObject(pocket9)
pocket9.Profile = sketch12
pocket9.Length = 8
doc.recompute()

mirrored3 = doc.addObject("PartDesign::Mirrored", "Mirrored002")
body.addObject(mirrored3)
mirrored3.Originals = [pocket9]
mirrored3.MirrorPlane = (doc.YZ_Plane, [""])
body.Tip = mirrored3

doc.recompute()
